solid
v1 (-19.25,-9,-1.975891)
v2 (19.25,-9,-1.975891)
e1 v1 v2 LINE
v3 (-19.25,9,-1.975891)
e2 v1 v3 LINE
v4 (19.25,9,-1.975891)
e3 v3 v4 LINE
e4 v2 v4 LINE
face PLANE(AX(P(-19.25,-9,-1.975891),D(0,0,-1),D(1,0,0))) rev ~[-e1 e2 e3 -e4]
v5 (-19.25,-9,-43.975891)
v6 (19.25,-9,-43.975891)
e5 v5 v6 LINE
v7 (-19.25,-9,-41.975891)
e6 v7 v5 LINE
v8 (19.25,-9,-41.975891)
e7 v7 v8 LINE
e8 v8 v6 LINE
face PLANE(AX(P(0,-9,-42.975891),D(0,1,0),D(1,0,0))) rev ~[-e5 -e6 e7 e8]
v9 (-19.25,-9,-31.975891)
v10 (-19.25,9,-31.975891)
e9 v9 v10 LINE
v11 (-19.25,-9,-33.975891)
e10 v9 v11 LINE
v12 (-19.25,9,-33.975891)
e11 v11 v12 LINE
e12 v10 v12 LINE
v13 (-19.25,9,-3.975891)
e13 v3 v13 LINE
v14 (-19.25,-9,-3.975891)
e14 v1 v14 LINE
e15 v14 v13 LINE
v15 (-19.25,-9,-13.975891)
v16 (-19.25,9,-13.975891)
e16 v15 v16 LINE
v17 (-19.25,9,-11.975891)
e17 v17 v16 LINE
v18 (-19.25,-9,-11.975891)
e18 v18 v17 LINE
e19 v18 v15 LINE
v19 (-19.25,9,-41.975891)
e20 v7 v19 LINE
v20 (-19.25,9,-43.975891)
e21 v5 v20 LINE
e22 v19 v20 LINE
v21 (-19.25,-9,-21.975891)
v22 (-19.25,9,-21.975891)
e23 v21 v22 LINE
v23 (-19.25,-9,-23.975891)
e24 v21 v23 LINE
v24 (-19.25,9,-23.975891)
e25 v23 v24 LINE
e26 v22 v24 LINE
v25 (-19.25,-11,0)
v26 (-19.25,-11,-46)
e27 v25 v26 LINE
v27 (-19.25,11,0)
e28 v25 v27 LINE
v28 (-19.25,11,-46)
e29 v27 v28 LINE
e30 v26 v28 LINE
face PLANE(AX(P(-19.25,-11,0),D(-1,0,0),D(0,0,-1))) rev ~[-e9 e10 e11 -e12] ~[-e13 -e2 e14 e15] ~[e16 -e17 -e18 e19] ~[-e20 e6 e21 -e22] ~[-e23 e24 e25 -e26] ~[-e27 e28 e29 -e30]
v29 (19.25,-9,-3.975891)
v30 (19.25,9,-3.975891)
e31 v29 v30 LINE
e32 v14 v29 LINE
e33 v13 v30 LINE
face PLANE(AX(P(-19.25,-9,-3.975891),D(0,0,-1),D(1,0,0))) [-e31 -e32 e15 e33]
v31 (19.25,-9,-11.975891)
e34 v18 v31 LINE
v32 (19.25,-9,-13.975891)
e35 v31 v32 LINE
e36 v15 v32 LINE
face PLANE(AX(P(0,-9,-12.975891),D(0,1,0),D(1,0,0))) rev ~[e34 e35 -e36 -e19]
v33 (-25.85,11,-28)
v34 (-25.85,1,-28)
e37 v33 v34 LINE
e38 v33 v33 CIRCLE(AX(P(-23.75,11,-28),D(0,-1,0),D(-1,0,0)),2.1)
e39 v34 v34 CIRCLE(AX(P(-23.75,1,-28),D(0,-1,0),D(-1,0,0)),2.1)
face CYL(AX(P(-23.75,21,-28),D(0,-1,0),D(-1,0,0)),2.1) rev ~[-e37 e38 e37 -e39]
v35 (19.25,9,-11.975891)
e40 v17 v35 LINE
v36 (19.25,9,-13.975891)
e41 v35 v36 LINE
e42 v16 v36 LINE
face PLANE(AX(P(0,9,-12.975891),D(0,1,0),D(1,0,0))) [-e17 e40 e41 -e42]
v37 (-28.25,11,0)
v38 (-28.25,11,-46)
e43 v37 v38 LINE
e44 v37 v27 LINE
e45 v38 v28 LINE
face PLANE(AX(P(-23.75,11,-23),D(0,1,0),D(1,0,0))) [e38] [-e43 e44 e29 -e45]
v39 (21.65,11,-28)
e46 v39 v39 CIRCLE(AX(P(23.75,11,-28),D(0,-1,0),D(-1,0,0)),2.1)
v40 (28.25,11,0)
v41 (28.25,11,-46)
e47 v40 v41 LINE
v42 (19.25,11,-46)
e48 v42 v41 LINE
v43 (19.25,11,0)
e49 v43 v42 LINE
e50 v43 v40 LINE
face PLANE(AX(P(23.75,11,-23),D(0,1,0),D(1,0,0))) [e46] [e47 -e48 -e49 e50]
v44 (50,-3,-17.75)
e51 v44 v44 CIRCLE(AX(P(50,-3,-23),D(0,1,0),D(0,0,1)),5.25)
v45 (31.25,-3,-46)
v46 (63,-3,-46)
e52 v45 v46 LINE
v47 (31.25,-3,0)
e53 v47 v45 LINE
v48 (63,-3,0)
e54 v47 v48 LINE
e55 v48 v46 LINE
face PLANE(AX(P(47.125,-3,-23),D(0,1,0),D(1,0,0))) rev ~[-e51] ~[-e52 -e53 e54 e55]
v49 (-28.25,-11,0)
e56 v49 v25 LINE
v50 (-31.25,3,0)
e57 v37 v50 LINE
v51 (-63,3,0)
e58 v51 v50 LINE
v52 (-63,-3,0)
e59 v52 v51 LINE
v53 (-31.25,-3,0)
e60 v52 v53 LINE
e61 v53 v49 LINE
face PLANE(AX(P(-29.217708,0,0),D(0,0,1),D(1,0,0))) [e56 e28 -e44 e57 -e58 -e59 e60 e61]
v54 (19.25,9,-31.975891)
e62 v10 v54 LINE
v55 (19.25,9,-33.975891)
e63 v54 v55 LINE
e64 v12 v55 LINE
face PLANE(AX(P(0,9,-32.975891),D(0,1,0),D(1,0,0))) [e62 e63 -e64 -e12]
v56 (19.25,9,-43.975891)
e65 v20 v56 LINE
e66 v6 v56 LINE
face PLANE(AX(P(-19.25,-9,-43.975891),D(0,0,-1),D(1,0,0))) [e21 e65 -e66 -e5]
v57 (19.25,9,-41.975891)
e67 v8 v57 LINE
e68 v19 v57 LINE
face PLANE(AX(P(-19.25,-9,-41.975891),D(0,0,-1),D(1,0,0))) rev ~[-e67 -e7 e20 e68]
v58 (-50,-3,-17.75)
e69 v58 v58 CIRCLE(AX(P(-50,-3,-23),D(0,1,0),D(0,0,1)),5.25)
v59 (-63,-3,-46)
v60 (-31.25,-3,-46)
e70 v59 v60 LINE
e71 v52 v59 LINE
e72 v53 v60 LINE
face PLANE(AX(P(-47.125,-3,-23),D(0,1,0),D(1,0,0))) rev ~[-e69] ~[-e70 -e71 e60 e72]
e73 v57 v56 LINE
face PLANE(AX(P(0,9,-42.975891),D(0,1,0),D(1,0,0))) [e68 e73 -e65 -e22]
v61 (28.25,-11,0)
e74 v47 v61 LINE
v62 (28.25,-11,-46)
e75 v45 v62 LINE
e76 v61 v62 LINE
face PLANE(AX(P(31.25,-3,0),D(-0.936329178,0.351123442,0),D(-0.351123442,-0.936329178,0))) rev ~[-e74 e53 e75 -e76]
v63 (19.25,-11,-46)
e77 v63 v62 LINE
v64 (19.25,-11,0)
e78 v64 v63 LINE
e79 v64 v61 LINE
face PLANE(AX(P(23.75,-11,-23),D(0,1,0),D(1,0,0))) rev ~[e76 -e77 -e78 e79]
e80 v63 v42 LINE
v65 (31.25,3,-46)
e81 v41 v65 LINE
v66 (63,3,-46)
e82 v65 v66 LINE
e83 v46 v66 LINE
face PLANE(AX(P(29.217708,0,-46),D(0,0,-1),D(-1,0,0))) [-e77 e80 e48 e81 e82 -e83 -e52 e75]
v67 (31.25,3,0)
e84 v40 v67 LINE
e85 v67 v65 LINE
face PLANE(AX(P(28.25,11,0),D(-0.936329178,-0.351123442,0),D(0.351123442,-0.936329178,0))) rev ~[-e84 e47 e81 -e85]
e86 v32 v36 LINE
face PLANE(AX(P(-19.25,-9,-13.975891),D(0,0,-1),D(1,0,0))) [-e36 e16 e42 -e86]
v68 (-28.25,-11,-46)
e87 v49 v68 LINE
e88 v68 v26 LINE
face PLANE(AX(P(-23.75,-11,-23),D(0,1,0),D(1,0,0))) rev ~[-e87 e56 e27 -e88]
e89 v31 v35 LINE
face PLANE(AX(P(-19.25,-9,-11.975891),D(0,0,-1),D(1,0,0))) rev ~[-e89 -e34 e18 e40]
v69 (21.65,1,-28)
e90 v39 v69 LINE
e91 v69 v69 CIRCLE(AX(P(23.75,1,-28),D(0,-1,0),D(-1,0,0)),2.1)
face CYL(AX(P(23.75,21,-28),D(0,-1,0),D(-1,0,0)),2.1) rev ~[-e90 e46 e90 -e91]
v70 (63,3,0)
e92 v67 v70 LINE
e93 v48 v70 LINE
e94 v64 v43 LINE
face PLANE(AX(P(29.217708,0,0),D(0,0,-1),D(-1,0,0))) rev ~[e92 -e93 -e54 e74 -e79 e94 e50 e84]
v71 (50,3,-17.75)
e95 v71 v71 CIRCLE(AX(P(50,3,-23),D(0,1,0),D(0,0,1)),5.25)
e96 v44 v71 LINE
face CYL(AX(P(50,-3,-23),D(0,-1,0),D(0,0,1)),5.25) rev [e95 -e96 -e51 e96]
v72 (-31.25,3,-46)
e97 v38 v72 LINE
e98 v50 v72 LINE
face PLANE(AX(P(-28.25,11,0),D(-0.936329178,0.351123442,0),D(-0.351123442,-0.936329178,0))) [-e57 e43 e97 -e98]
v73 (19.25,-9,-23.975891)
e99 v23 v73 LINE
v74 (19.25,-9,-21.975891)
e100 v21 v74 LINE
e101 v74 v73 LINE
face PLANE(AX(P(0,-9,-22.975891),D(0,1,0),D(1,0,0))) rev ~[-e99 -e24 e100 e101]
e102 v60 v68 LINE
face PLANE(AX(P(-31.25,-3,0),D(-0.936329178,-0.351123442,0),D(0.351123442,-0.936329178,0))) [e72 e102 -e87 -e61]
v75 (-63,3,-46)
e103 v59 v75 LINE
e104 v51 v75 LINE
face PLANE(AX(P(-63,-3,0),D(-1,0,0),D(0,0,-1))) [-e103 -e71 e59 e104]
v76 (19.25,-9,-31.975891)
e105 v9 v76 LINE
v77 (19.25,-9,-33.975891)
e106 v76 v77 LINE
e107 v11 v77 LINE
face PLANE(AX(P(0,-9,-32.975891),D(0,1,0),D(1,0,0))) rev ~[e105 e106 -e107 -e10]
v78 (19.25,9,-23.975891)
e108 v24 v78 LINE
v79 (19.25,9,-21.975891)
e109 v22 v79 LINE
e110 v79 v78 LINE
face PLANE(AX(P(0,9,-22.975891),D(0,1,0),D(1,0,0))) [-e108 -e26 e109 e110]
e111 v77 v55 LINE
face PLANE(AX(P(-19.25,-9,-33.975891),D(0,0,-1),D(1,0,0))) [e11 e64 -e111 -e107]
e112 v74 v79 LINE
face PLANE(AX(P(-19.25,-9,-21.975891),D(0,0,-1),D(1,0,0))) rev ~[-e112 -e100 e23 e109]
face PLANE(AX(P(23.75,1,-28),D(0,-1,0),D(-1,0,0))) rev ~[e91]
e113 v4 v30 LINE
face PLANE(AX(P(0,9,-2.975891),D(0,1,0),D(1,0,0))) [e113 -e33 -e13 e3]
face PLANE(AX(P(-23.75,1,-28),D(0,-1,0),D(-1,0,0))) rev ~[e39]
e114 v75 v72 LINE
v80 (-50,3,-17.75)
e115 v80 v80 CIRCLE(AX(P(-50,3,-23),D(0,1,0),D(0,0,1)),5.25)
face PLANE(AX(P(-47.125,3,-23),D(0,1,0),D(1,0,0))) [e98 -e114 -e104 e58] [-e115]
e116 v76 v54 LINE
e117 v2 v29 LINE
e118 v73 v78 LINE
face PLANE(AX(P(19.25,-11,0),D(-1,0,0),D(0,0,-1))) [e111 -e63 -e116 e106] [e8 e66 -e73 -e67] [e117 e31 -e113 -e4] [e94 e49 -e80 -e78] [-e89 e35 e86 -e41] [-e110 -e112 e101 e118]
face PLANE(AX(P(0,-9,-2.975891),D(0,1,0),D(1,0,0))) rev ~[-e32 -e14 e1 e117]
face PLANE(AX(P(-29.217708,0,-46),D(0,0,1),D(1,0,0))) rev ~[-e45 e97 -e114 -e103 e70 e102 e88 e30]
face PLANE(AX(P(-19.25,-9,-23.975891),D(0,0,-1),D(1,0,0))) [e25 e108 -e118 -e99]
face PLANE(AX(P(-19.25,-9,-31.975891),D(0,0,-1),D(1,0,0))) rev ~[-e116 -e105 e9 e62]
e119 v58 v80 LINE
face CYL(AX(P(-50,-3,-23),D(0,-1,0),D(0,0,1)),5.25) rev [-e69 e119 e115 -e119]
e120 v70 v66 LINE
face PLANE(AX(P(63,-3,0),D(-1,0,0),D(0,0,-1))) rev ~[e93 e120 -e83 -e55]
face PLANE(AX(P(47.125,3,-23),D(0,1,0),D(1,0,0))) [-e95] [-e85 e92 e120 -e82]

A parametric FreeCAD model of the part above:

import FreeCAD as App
import Part
import Sketcher

V = App.Vector


def add_polygon(sketch, points):
    """Adds a closed chain of lines whose ends are joined by coincident constraints."""
    first, n = sketch.GeometryCount, len(points)
    for a, b in zip(points, points[1:] + points[:1]):
        sketch.addGeometry(Part.LineSegment(App.Vector(*a, 0), App.Vector(*b, 0)), False)
    for i in range(n):
        sketch.addConstraint(Sketcher.Constraint("Coincident", first + i, 2, first + (i + 1) % n, 1))

doc = App.newDocument("Part")
body = doc.addObject("PartDesign::Body", "Body")

# Sketch on XZ plane
sketch1 = body.newObject("Sketcher::SketchObject", "Sketch")
sketch1.AttachmentSupport = (doc.getObject("XZ_Plane"), [""])
sketch1.MapMode = "FlatFace"
add_polygon(sketch1, [(-63, -46), (-63, 0), (-31, 0), (-31, -46)])  # lines 0-3
sketch1.addGeometry(Part.Circle(V(-50, -23, 0), V(0, 0, 1), 5), False)  # 4
sketch1.addConstraint(Sketcher.Constraint("Vertical", 0))
sketch1.addConstraint(Sketcher.Constraint("Horizontal", 1))
sketch1.addConstraint(Sketcher.Constraint("Vertical", 2))
sketch1.addConstraint(Sketcher.Constraint("Horizontal", 3))
sketch1.addConstraint(Sketcher.Constraint("PointOnObject", 0, 2, -1))
sketch1.addConstraint(Sketcher.Constraint("Diameter", 4, 10.5))
sketch1.addConstraint(Sketcher.Constraint("DistanceY", 0, 1, 0, 2, 46.0))
sketch1.addConstraint(Sketcher.Constraint("DistanceX", 4, 3, -1, 1, 50.0))
sketch1.addConstraint(Sketcher.Constraint("DistanceY", 4, 3, -1, 1, 23.0))
sketch1.addConstraint(Sketcher.Constraint("DistanceX", 0, 2, -1, 1, 63.0))
sketch1.addConstraint(Sketcher.Constraint("DistanceX", 1, 1, 1, 2, 31.75))
pad1 = body.newObject("PartDesign::Pad", "Pad")
pad1.Profile = sketch1
pad1.Type = "TwoLengths"
pad1.Length = 3
pad1.Length2 = 3
pad1.Reversed = True
body2 = doc.addObject("PartDesign::Body", "Body001")

# Sketch on XZ plane
sketch2 = body2.newObject("Sketcher::SketchObject", "Sketch001")
sketch2.AttachmentSupport = (doc.getObject("XZ_Plane001"), [""])
sketch2.MapMode = "FlatFace"
add_polygon(sketch2, [(31, -46), (31, 0), (63, 0), (63, -46)])  # lines 0-3
sketch2.addGeometry(Part.Circle(V(50, -23, 0), V(0, 0, 1), 5), False)  # 4
sketch2.addConstraint(Sketcher.Constraint("Vertical", 0))
sketch2.addConstraint(Sketcher.Constraint("Horizontal", 1))
sketch2.addConstraint(Sketcher.Constraint("Vertical", 2))
sketch2.addConstraint(Sketcher.Constraint("Horizontal", 3))
sketch2.addConstraint(Sketcher.Constraint("PointOnObject", 0, 2, -1))
sketch2.addConstraint(Sketcher.Constraint("Diameter", 4, 10.5))
sketch2.addConstraint(Sketcher.Constraint("DistanceY", 0, 1, 0, 2, 46.0))
sketch2.addConstraint(Sketcher.Constraint("DistanceX", -1, 1, 4, 3, 50.0))
sketch2.addConstraint(Sketcher.Constraint("DistanceY", 4, 3, -1, 1, 23.0))
sketch2.addConstraint(Sketcher.Constraint("DistanceX", -1, 1, 1, 2, 63.0))
sketch2.addConstraint(Sketcher.Constraint("DistanceX", 1, 1, 1, 2, 31.75))
pad2 = body2.newObject("PartDesign::Pad", "Pad001")
pad2.Profile = sketch2
pad2.Type = "TwoLengths"
pad2.Length = 3
pad2.Length2 = 3
pad2.Reversed = True
body3 = doc.addObject("PartDesign::Body", "Body002")

# Sketch on XZ plane
sketch3 = body3.newObject("Sketcher::SketchObject", "Sketch002")
sketch3.AttachmentSupport = (doc.getObject("XZ_Plane002"), [""])
sketch3.MapMode = "FlatFace"
add_polygon(sketch3, [(19, -46), (19, 0), (28, 0), (28, -46)])  # lines 0-3
sketch3.addConstraint(Sketcher.Constraint("Vertical", 0))
sketch3.addConstraint(Sketcher.Constraint("Horizontal", 1))
sketch3.addConstraint(Sketcher.Constraint("Vertical", 2))
sketch3.addConstraint(Sketcher.Constraint("Horizontal", 3))
sketch3.addConstraint(Sketcher.Constraint("PointOnObject", 0, 2, -1))
sketch3.addConstraint(Sketcher.Constraint("DistanceX", 1, 1, 1, 2, 9.0))
sketch3.addConstraint(Sketcher.Constraint("DistanceY", 0, 1, 0, 2, 46.0))
sketch3.addConstraint(Sketcher.Constraint("DistanceX", -1, 1, 0, 2, 19.25))
pad3 = body3.newObject("PartDesign::Pad", "Pad002")
pad3.Profile = sketch3
pad3.Type = "TwoLengths"
pad3.Length = 11
pad3.Length2 = 11
pad3.Reversed = True
body4 = doc.addObject("PartDesign::Body", "Body003")

# Sketch on XZ plane
sketch4 = body4.newObject("Sketcher::SketchObject", "Sketch003")
sketch4.AttachmentSupport = (doc.getObject("XZ_Plane003"), [""])
sketch4.MapMode = "FlatFace"
add_polygon(sketch4, [(-28, -46), (-28, 0), (-19, 0), (-19, -46)])  # lines 0-3
sketch4.addConstraint(Sketcher.Constraint("Vertical", 0))
sketch4.addConstraint(Sketcher.Constraint("Horizontal", 1))
sketch4.addConstraint(Sketcher.Constraint("Vertical", 2))
sketch4.addConstraint(Sketcher.Constraint("Horizontal", 3))
sketch4.addConstraint(Sketcher.Constraint("PointOnObject", 0, 2, -1))
sketch4.addConstraint(Sketcher.Constraint("DistanceX", 1, 1, 1, 2, 9.0))
sketch4.addConstraint(Sketcher.Constraint("DistanceY", 0, 1, 0, 2, 46.0))
sketch4.addConstraint(Sketcher.Constraint("DistanceX", 0, 2, -1, 1, 28.25))
pad4 = body4.newObject("PartDesign::Pad", "Pad003")
pad4.Profile = sketch4
pad4.Type = "TwoLengths"
pad4.Length = 11
pad4.Length2 = 11
pad4.Reversed = True
body.AllowCompound = True
doc.recompute()

boolean = body.newObject("PartDesign::Boolean", "Boolean")
boolean.Type = "Fuse"
boolean.addObjects([body2])
doc.recompute()

boolean2 = body.newObject("PartDesign::Boolean", "Boolean001")
boolean2.Type = "Fuse"
boolean2.addObjects([body3])
doc.recompute()

boolean3 = body.newObject("PartDesign::Boolean", "Boolean002")
boolean3.Type = "Fuse"
boolean3.addObjects([body4])

# Sketch on XY plane
sketch5 = body.newObject("Sketcher::SketchObject", "Sketch004")
sketch5.AttachmentSupport = (doc.getObject("XY_Plane"), [""])
sketch5.MapMode = "FlatFace"
add_polygon(sketch5, [(31, 3), (28, 11), (28, -11), (31, -3)])  # lines 0-3
add_polygon(sketch5, [(-31, 3), (-31, -3), (-28, -11), (-28, 11)])  # lines 4-7
sketch5.addConstraint(Sketcher.Constraint("Vertical", 1))
sketch5.addConstraint(Sketcher.Constraint("Vertical", 3))
sketch5.addConstraint(Sketcher.Constraint("Vertical", 4))
sketch5.addConstraint(Sketcher.Constraint("Vertical", 6))
sketch5.addConstraint(Sketcher.Constraint("Symmetric", 3, 2, 4, 2, -1, 1))
sketch5.addConstraint(Sketcher.Constraint("Symmetric", 0, 2, 5, 2, -1, 1))
sketch5.addConstraint(Sketcher.Constraint("Parallel", 2, 7))
sketch5.addConstraint(Sketcher.Constraint("Horizontal", 2, 2, 4, 2))
sketch5.addConstraint(Sketcher.Constraint("Horizontal", 1, 2, 5, 2))
sketch5.addConstraint(Sketcher.Constraint("Horizontal", 0, 2, 6, 2))
sketch5.addConstraint(Sketcher.Constraint("DistanceY", 1, 2, 1, 1, 22.0))
sketch5.addConstraint(Sketcher.Constraint("DistanceY", 3, 1, 3, 2, 6.0))
sketch5.addConstraint(Sketcher.Constraint("DistanceX", 1, 2, 2, 2, 3.0))
sketch5.addConstraint(Sketcher.Constraint("DistanceX", 4, 2, 1, 2, 59.5))
pad5 = body.newObject("PartDesign::Pad", "Pad004")
pad5.Profile = sketch5
pad5.Length = 46
pad5.Reversed = True

# Sketch on XZ plane
sketch6 = body.newObject("Sketcher::SketchObject", "Sketch005")
sketch6.AttachmentSupport = (doc.getObject("XZ_Plane"), [""])
sketch6.MapMode = "FlatFace"
sketch6.AttachmentOffset = App.Placement(V(0, 0, -11), App.Rotation())
sketch6.addGeometry(Part.Circle(V(-23.8, -28, 0), V(0, 0, 1), 2.1), False)
sketch6.addGeometry(Part.Circle(V(23.8, -28, 0), V(0, 0, 1), 2.1), False)
sketch6.addConstraint(Sketcher.Constraint("Equal", 0, 1))
sketch6.addConstraint(Sketcher.Constraint("Symmetric", 0, 3, 1, 3, -2))
sketch6.addConstraint(Sketcher.Constraint("Diameter", 0, 4.2))
sketch6.addConstraint(Sketcher.Constraint("DistanceY", 0, 3, -1, 1, 28.0))
sketch6.addConstraint(Sketcher.Constraint("DistanceX", 0, 3, 1, 3, 47.5))
doc.recompute()
hole = body.newObject("PartDesign::Hole", "Hole")
hole.Profile = sketch6
hole.ThreadType = "None"
hole.Diameter = 4.2
hole.DepthType = "Dimension"
hole.Depth = 10
hole.DrillPoint = "Flat"
hole.Reversed = True

# Sketch on XZ plane
sketch7 = body.newObject("Sketcher::SketchObject", "Sketch006")
sketch7.AttachmentSupport = (doc.getObject("XZ_Plane"), [""])
sketch7.MapMode = "FlatFace"
add_polygon(sketch7, [(-19.2, -4), (-19.2, -2), (19.2, -2), (19.2, -4)])  # lines 0-3
add_polygon(sketch7, [(-19.2, -14), (-19.2, -12), (19.2, -12), (19.2, -14)])  # lines 4-7
add_polygon(sketch7, [(-19.2, -24), (-19.2, -22), (19.2, -22), (19.2, -24)])  # lines 8-11
add_polygon(sketch7, [(-19.2, -34), (-19.2, -32), (19.2, -32), (19.2, -34)])  # lines 12-15
add_polygon(sketch7, [(-19.2, -44), (-19.2, -42), (19.2, -42), (19.2, -44)])  # lines 16-19
sketch7.addConstraint(Sketcher.Constraint("Vertical", 0))
sketch7.addConstraint(Sketcher.Constraint("Horizontal", 1))
sketch7.addConstraint(Sketcher.Constraint("Vertical", 2))
sketch7.addConstraint(Sketcher.Constraint("Horizontal", 3))
sketch7.addConstraint(Sketcher.Constraint("Vertical", 4))
sketch7.addConstraint(Sketcher.Constraint("Horizontal", 5))
sketch7.addConstraint(Sketcher.Constraint("Vertical", 6))
sketch7.addConstraint(Sketcher.Constraint("Horizontal", 7))
sketch7.addConstraint(Sketcher.Constraint("Vertical", 8))
sketch7.addConstraint(Sketcher.Constraint("Horizontal", 9))
sketch7.addConstraint(Sketcher.Constraint("Vertical", 10))
sketch7.addConstraint(Sketcher.Constraint("Horizontal", 11))
sketch7.addConstraint(Sketcher.Constraint("Vertical", 12))
sketch7.addConstraint(Sketcher.Constraint("Horizontal", 13))
sketch7.addConstraint(Sketcher.Constraint("Vertical", 14))
sketch7.addConstraint(Sketcher.Constraint("Horizontal", 15))
sketch7.addConstraint(Sketcher.Constraint("Vertical", 16))
sketch7.addConstraint(Sketcher.Constraint("Horizontal", 17))
sketch7.addConstraint(Sketcher.Constraint("Vertical", 18))
sketch7.addConstraint(Sketcher.Constraint("Horizontal", 19))
sketch7.addConstraint(Sketcher.Constraint("Vertical", 3, 2, 4, 2))
sketch7.addConstraint(Sketcher.Constraint("Vertical", 2, 2, 5, 2))
sketch7.addConstraint(Sketcher.Constraint("Vertical", 7, 2, 8, 2))
sketch7.addConstraint(Sketcher.Constraint("Vertical", 6, 2, 9, 2))
sketch7.addConstraint(Sketcher.Constraint("Vertical", 11, 2, 12, 2))
sketch7.addConstraint(Sketcher.Constraint("Vertical", 10, 2, 13, 2))
sketch7.addConstraint(Sketcher.Constraint("Vertical", 15, 2, 16, 2))
sketch7.addConstraint(Sketcher.Constraint("Vertical", 14, 2, 17, 2))
sketch7.addConstraint(Sketcher.Constraint("Equal", 2, 4))
sketch7.addConstraint(Sketcher.Constraint("Equal", 6, 8))
sketch7.addConstraint(Sketcher.Constraint("Equal", 10, 12))
sketch7.addConstraint(Sketcher.Constraint("Equal", 14, 16))
sketch7.addConstraint(Sketcher.Constraint("DistanceY", 0, 1, 0, 2, 2.0))
sketch7.addConstraint(Sketcher.Constraint("DistanceX", 1, 1, 1, 2, 38.5))
sketch7.addConstraint(Sketcher.Constraint("DistanceY", 4, 2, 3, 2, 8.0))
sketch7.addConstraint(Sketcher.Constraint("DistanceY", 8, 2, 7, 2, 8.0))
sketch7.addConstraint(Sketcher.Constraint("DistanceY", 12, 2, 11, 2, 8.0))
sketch7.addConstraint(Sketcher.Constraint("DistanceY", 16, 2, 15, 2, 8.0))
sketch7.addConstraint(Sketcher.Constraint("DistanceX", 0, 2, -1, 1, 19.25))
sketch7.addConstraint(Sketcher.Constraint("DistanceY", 0, 2, -1, 1, 1.975891))
pad6 = body.newObject("PartDesign::Pad", "Pad005")
pad6.Profile = sketch7
pad6.Type = "TwoLengths"
pad6.Length = 9
pad6.Length2 = 9
pad6.Reversed = True

doc.recompute()
